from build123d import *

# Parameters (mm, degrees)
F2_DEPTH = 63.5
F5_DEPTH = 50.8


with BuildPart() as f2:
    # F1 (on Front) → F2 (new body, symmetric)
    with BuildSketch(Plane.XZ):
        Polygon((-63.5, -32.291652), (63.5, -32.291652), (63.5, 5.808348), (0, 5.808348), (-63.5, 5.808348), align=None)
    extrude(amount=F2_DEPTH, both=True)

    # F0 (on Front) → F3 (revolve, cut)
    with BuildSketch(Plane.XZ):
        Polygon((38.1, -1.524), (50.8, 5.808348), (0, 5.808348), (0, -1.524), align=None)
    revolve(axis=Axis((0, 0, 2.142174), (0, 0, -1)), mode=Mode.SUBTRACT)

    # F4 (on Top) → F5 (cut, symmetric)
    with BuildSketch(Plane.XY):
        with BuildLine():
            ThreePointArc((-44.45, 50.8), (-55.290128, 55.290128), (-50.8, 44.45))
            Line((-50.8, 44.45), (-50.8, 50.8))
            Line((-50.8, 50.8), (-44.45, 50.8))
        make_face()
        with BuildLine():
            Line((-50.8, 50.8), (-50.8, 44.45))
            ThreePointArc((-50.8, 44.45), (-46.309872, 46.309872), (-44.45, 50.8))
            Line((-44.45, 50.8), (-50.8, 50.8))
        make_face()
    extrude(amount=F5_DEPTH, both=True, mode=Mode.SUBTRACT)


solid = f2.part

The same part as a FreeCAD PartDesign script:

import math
import FreeCAD as App
import Part
import Sketcher
Q = App.Units.Quantity

doc = App.newDocument("Part")
body = doc.addObject("PartDesign::Body", "Body")

# Sketch on XZ plane
sketch1 = doc.addObject("Sketcher::SketchObject", "Sketch")
body.addObject(sketch1)
sketch1.AttachmentSupport = (doc.XZ_Plane, [""])
sketch1.MapMode = "FlatFace"
sketch1.addGeometry(Part.LineSegment(App.Vector(-64, -32, 0), App.Vector(64, -32, 0)), False)
sketch1.addGeometry(Part.LineSegment(App.Vector(64, -32, 0), App.Vector(64, 6, 0)), False)
sketch1.addGeometry(Part.LineSegment(App.Vector(64, 6, 0), App.Vector(-64, 6, 0)), False)
sketch1.addGeometry(Part.LineSegment(App.Vector(-64, 6, 0), App.Vector(-64, -32, 0)), False)
sketch1.addConstraint(Sketcher.Constraint("Coincident", 0, 2, 1, 1))
sketch1.addConstraint(Sketcher.Constraint("Coincident", 1, 2, 2, 1))
sketch1.addConstraint(Sketcher.Constraint("Coincident", 2, 2, 3, 1))
sketch1.addConstraint(Sketcher.Constraint("Coincident", 3, 2, 0, 1))
sketch1.addConstraint(Sketcher.Constraint("Horizontal", 0))
sketch1.addConstraint(Sketcher.Constraint("Vertical", 1))
sketch1.addConstraint(Sketcher.Constraint("Horizontal", 2))
sketch1.addConstraint(Sketcher.Constraint("Vertical", 3))
sketch1.addConstraint(Sketcher.Constraint("DistanceX", 0, 1, 0, 2, Q("5 in")))
sketch1.addConstraint(Sketcher.Constraint("DistanceY", 1, 1, 1, 2, Q("1.5 in")))
sketch1.addConstraint(Sketcher.Constraint("DistanceX", -1, 1, 0, 2, Q("2.5 in")))
sketch1.addConstraint(Sketcher.Constraint("DistanceY", 0, 2, -1, 1, Q("32.291652 mm")))
pad1 = doc.addObject("PartDesign::Pad", "Pad")
body.addObject(pad1)
pad1.Profile = sketch1
pad1.Length = Q("5 in")
pad1.Midplane = True

# Sketch on XZ plane
sketch2 = doc.addObject("Sketcher::SketchObject", "Sketch001")
body.addObject(sketch2)
sketch2.AttachmentSupport = (doc.XZ_Plane, [""])
sketch2.MapMode = "FlatFace"
sketch2.addGeometry(Part.LineSegment(App.Vector(38, -2, 0), App.Vector(51, 6, 0)), False)
sketch2.addGeometry(Part.LineSegment(App.Vector(51, 6, 0), App.Vector(0, 6, 0)), False)
sketch2.addGeometry(Part.LineSegment(App.Vector(0, 6, 0), App.Vector(0, -2, 0)), False)
sketch2.addGeometry(Part.LineSegment(App.Vector(0, -2, 0), App.Vector(38, -2, 0)), False)
sketch2.addConstraint(Sketcher.Constraint("Coincident", 0, 2, 1, 1))
sketch2.addConstraint(Sketcher.Constraint("Coincident", 1, 2, 2, 1))
sketch2.addConstraint(Sketcher.Constraint("Coincident", 2, 2, 3, 1))
sketch2.addConstraint(Sketcher.Constraint("Coincident", 3, 2, 0, 1))
sketch2.addConstraint(Sketcher.Constraint("Horizontal", 1))
sketch2.addConstraint(Sketcher.Constraint("Vertical", 2))
sketch2.addConstraint(Sketcher.Constraint("Horizontal", 3))
sketch2.addConstraint(Sketcher.Constraint("PointOnObject", 1, 2, -2))
sketch2.addConstraint(Sketcher.Constraint("DistanceX", 1, 2, 1, 1, Q("2 in")))
sketch2.addConstraint(Sketcher.Constraint("DistanceX", 3, 1, 3, 2, Q("1.5 in")))
sketch2.addConstraint(Sketcher.Constraint("Angle", 0, Q("29.999999 deg")))
sketch2.addConstraint(Sketcher.Constraint("DistanceY", 2, 2, -1, 1, Q("0.06 in")))
groove = doc.addObject("PartDesign::Groove", "Groove")
body.addObject(groove)
groove.Profile = sketch2
groove.ReferenceAxis = (sketch2, ["V_Axis"])
groove.Angle = 360

# Sketch on XY plane
sketch3 = doc.addObject("Sketcher::SketchObject", "Sketch002")
body.addObject(sketch3)
sketch3.AttachmentSupport = (doc.XY_Plane, [""])
sketch3.MapMode = "FlatFace"
sketch3.addGeometry(Part.ArcOfCircle(Part.Circle(App.Vector(-51, 51, 0), App.Vector(0, 0, 1), 6), math.radians(0), math.radians(270)), False)
sketch3.addGeometry(Part.ArcOfCircle(Part.Circle(App.Vector(-51, 51, 0), App.Vector(0, 0, 1), 6), math.radians(-90), math.radians(0)), False)
sketch3.addConstraint(Sketcher.Constraint("Tangent", 0, 1, 1, 2))
sketch3.addConstraint(Sketcher.Constraint("Coincident", 1, 1, 0, 2))
sketch3.addConstraint(Sketcher.Constraint("Horizontal", 1, 3, 0, 1))
sketch3.addConstraint(Sketcher.Constraint("Vertical", 0, 3, 1, 1))
sketch3.addConstraint(Sketcher.Constraint("Radius", 0, Q("0.25 in")))
sketch3.addConstraint(Sketcher.Constraint("DistanceX", 0, 3, -1, 1, Q("2 in")))
sketch3.addConstraint(Sketcher.Constraint("DistanceY", -1, 1, 0, 3, Q("2 in")))
pocket1 = doc.addObject("PartDesign::Pocket", "Pocket")
body.addObject(pocket1)
pocket1.Profile = sketch3
pocket1.Length = Q("4 in")
pocket1.Midplane = True

doc.recompute()
